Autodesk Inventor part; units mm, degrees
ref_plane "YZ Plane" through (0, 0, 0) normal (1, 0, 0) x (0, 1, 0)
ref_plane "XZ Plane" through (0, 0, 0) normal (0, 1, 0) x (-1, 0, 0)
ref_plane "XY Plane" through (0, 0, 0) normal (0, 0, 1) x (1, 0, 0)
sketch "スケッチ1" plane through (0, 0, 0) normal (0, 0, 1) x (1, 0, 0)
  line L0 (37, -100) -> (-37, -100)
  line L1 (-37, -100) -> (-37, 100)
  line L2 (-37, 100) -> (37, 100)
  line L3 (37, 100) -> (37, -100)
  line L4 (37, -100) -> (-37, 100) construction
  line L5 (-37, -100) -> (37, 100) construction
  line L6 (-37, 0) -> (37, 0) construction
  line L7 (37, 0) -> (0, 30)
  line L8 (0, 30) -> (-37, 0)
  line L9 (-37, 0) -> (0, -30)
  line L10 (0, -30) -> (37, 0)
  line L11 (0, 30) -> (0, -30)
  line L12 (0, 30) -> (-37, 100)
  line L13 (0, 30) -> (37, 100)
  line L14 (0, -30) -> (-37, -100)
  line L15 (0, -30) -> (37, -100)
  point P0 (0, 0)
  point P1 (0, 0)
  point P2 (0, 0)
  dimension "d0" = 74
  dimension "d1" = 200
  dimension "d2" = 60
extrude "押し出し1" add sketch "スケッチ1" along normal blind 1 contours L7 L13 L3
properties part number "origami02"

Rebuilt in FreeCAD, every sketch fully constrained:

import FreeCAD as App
import Part
import Sketcher
from FreeCAD import Vector
Q = App.Units.Quantity


def add_polygon(sketch, points):
    """Adds a closed chain of lines whose ends are joined by coincident constraints."""
    first, n = sketch.GeometryCount, len(points)
    for a, b in zip(points, points[1:] + points[:1]):
        sketch.addGeometry(Part.LineSegment(App.Vector(*a, 0), App.Vector(*b, 0)), False)
    for i in range(n):
        sketch.addConstraint(Sketcher.Constraint("Coincident", first + i, 2, first + (i + 1) % n, 1))

doc = App.newDocument("Part")
body = doc.addObject("PartDesign::Body", "Body")

sketch1 = body.newObject("Sketcher::SketchObject", "Sketch")
sketch1.AttachmentSupport = (doc.getObject("XY_Plane"), [""])
sketch1.MapMode = "FlatFace"
add_polygon(sketch1, [(0, 30), (37, 0), (37, 100)])
sketch1.addConstraint(Sketcher.Constraint("Vertical", 1))
sketch1.addConstraint(Sketcher.Constraint("PointOnObject", 0, 2, -1))
sketch1.addConstraint(Sketcher.Constraint("PointOnObject", 2, 2, -2))
sketch1.addConstraint(Sketcher.Constraint("DistanceY", 1, 1, 1, 2, Q("100 mm")))
sketch1.addConstraint(Sketcher.Constraint("DistanceX", -1, 1, 0, 2, Q("37 mm")))
sketch1.addConstraint(Sketcher.Constraint("DistanceY", -1, 1, 2, 2, Q("30 mm")))
pad1 = body.newObject("PartDesign::Pad", "Pad")
pad1.Profile = sketch1
pad1.Length = 1

doc.recompute()
